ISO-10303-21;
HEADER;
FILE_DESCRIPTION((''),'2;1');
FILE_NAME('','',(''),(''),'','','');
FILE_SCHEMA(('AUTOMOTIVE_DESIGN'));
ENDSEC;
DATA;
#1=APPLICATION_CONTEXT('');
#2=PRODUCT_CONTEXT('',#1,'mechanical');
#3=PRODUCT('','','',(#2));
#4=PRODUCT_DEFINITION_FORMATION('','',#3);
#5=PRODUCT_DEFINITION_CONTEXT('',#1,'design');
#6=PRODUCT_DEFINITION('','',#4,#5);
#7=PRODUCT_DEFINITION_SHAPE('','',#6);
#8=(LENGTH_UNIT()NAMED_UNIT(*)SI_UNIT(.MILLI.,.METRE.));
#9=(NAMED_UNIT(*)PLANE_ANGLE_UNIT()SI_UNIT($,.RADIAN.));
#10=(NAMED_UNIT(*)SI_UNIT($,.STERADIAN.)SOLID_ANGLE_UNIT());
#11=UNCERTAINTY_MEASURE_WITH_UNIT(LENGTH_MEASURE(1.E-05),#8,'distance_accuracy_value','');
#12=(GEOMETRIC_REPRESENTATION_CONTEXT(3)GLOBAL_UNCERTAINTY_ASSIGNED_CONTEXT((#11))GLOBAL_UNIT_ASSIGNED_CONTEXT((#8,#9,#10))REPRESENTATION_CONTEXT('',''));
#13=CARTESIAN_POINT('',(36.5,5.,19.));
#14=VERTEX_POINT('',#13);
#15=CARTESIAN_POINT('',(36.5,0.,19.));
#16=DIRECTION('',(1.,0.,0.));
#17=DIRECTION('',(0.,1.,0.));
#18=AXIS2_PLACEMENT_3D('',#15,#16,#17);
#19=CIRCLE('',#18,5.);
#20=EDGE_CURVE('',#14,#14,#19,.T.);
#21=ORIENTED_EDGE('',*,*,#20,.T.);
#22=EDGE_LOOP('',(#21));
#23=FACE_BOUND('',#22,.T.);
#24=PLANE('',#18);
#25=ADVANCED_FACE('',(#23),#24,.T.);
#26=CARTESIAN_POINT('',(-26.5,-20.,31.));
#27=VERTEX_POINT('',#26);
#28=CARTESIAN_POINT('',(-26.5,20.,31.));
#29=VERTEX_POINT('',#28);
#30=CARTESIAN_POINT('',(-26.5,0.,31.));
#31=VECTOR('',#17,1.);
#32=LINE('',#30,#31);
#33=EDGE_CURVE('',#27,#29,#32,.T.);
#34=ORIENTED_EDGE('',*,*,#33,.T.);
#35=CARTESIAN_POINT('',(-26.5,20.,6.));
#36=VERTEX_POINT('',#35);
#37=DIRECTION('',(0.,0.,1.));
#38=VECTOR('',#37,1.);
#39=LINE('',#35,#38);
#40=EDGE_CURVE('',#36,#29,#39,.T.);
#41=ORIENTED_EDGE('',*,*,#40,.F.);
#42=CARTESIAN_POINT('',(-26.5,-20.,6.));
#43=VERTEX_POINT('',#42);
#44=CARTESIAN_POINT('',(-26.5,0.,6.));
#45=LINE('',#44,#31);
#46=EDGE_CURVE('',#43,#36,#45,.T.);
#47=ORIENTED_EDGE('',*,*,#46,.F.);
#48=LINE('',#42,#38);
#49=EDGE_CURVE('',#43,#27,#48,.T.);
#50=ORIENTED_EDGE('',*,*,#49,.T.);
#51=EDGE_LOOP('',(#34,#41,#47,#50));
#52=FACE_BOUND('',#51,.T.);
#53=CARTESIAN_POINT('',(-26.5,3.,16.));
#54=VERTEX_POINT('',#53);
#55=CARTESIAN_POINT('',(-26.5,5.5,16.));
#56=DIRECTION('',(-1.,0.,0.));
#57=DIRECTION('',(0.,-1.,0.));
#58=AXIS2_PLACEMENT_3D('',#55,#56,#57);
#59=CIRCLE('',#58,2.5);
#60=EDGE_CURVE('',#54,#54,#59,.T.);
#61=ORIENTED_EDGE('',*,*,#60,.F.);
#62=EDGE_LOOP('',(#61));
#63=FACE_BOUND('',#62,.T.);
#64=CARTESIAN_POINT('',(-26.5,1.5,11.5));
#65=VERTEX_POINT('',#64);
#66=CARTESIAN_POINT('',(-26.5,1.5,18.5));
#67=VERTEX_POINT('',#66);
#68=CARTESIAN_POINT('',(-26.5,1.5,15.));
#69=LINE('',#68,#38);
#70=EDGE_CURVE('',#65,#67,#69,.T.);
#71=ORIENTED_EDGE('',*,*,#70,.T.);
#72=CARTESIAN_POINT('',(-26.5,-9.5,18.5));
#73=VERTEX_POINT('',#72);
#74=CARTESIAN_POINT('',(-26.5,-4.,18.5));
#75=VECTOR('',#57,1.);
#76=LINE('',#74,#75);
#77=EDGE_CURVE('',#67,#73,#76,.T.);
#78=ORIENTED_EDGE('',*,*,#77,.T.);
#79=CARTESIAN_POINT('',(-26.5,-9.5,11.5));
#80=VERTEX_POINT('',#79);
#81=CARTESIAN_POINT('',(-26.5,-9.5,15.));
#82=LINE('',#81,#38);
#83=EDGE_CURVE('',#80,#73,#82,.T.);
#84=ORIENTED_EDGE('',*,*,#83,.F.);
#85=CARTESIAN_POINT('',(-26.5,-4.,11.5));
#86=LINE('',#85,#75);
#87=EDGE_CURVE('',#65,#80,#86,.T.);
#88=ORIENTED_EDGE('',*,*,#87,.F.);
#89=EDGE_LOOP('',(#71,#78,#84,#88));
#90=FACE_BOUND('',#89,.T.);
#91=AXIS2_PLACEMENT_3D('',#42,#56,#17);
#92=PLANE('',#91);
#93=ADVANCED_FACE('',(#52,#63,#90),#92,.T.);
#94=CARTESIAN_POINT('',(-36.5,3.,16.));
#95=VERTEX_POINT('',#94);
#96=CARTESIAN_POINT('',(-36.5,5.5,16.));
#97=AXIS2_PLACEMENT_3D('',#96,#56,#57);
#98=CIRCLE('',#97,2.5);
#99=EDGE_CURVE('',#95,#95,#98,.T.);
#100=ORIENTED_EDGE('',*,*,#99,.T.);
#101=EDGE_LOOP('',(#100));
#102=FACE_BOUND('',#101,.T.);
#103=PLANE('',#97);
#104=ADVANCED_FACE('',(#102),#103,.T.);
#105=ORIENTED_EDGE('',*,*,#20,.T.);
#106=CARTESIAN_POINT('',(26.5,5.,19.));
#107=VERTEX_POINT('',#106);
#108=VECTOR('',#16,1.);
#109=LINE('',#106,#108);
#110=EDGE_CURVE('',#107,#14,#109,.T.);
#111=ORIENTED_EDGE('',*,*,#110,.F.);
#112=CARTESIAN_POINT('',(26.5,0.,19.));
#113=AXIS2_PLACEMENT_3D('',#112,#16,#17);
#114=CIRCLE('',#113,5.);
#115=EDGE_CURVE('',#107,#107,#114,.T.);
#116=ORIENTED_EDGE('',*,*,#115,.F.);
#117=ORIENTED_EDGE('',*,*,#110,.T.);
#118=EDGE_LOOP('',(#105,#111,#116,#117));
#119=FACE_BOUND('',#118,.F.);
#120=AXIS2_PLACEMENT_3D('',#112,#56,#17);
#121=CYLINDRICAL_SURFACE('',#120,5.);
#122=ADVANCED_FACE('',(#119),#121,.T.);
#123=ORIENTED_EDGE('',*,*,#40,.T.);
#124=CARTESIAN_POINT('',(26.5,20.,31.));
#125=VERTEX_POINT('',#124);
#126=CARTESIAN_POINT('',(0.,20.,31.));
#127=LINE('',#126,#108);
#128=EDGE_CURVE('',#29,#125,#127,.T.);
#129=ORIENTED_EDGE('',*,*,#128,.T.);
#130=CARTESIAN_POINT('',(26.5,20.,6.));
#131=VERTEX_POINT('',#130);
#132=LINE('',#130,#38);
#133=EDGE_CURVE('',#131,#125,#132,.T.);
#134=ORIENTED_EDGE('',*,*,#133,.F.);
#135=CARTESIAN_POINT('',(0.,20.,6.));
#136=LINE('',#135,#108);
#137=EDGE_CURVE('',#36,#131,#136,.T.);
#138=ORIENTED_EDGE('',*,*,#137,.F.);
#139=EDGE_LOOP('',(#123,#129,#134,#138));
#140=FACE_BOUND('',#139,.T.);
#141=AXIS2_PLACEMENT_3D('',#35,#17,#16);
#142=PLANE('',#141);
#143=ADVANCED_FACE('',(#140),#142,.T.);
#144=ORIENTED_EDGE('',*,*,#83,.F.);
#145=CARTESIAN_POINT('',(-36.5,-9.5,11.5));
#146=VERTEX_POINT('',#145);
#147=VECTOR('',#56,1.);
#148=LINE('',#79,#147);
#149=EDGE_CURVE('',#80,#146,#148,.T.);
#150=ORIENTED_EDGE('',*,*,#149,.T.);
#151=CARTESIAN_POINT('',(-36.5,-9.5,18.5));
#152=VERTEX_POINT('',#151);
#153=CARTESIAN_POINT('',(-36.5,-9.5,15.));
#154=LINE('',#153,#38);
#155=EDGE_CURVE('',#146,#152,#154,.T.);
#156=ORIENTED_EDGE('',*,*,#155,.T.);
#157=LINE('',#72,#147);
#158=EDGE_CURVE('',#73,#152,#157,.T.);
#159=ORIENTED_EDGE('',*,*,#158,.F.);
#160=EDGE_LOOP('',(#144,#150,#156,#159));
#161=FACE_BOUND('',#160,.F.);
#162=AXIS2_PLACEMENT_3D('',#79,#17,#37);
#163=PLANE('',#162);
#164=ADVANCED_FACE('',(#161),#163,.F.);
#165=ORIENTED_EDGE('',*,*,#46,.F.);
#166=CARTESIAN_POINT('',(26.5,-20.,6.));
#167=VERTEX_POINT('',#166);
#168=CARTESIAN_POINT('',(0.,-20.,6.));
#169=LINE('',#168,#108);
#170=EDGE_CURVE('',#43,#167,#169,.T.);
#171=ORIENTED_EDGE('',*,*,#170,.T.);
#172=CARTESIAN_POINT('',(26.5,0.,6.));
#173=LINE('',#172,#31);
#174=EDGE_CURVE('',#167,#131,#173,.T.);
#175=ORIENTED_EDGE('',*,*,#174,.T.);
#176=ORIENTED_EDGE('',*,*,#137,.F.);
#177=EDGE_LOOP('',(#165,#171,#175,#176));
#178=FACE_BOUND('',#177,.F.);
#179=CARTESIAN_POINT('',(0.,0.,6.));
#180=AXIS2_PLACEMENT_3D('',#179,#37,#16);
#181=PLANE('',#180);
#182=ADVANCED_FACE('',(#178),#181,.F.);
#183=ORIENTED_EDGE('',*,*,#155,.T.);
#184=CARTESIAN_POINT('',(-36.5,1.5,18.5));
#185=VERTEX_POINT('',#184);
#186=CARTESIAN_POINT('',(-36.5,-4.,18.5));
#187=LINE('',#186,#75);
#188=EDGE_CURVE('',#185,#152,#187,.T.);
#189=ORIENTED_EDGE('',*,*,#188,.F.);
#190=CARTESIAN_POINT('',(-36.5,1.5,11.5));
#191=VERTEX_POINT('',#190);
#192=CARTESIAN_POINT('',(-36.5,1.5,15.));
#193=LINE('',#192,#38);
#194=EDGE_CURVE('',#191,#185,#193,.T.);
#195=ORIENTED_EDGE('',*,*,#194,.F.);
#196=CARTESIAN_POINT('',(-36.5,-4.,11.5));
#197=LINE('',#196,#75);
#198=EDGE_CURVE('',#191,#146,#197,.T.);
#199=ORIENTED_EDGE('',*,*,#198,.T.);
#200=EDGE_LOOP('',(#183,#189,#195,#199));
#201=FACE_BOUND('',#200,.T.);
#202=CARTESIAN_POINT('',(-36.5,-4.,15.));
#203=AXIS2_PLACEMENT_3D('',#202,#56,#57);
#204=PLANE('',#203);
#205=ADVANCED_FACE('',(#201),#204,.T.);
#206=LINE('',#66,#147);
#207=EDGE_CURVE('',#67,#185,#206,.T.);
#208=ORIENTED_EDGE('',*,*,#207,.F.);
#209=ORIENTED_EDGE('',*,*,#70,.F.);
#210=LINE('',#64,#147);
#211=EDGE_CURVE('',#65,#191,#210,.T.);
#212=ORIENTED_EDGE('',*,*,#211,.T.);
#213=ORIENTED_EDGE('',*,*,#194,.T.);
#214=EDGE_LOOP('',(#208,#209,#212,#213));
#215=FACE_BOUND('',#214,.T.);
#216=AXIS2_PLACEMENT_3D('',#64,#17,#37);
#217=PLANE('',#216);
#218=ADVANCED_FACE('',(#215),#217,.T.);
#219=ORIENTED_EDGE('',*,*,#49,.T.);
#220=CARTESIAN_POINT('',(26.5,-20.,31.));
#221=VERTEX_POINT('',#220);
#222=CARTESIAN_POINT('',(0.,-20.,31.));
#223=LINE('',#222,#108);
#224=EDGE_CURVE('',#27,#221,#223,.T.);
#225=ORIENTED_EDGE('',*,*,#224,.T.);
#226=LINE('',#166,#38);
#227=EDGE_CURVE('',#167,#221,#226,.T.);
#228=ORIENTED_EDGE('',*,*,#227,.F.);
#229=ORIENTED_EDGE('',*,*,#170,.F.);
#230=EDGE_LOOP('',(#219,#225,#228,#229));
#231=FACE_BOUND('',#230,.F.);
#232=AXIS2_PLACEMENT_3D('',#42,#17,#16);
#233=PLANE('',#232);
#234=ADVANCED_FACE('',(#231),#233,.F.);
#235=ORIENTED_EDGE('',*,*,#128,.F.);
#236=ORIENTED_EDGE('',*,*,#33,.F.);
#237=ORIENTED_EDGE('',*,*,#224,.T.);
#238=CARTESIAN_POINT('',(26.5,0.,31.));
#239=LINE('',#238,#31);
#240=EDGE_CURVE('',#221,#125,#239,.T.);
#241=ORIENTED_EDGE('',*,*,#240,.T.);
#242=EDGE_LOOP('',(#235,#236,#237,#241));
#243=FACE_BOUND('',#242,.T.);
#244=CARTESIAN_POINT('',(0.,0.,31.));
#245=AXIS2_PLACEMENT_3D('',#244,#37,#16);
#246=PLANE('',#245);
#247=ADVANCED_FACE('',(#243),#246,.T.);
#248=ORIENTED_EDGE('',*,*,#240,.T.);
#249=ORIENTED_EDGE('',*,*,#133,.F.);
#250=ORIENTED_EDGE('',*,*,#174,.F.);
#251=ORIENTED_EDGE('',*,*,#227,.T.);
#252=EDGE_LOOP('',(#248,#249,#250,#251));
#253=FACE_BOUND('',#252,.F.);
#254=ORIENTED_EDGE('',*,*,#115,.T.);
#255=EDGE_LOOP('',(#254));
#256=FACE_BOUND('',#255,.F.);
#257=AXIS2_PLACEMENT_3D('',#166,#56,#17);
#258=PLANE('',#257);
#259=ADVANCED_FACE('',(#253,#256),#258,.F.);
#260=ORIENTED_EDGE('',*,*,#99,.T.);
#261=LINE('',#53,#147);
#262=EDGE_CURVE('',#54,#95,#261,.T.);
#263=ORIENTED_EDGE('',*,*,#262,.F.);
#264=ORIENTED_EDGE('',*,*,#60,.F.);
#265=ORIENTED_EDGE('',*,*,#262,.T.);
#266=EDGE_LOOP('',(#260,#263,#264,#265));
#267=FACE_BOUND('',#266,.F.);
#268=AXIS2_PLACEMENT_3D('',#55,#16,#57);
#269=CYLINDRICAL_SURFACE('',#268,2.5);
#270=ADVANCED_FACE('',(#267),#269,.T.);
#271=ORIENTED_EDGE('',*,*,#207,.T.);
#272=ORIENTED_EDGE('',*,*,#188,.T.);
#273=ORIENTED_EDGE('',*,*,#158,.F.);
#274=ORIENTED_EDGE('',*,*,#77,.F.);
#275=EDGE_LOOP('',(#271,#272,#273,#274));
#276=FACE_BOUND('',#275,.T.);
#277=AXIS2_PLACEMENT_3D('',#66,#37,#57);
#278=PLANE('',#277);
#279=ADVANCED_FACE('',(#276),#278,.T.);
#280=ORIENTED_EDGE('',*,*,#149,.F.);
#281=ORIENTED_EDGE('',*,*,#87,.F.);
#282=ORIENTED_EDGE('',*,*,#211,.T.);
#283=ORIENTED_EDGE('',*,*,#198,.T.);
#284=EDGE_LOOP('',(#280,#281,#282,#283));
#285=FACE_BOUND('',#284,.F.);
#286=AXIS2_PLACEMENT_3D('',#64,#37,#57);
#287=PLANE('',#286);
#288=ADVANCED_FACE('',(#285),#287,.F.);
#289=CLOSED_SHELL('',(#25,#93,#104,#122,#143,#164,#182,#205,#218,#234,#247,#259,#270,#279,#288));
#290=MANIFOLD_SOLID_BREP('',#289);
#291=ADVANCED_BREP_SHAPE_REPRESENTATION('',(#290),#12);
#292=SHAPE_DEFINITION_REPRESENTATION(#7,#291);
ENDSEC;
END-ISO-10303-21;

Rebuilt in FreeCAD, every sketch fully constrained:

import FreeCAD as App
import Part
import Sketcher

doc = App.newDocument("Part")
body = doc.addObject("PartDesign::Body", "Body")

# Sketch on XY plane
sketch1 = doc.addObject("Sketcher::SketchObject", "Sketch")
body.addObject(sketch1)
sketch1.AttachmentSupport = (doc.XY_Plane, [""])
sketch1.MapMode = "FlatFace"
sketch1.addGeometry([
    Part.LineSegment(App.Vector(-26, 20, 0), App.Vector(-26, -20, 0)),
    Part.LineSegment(App.Vector(-26, -20, 0), App.Vector(26, -20, 0)),
    Part.LineSegment(App.Vector(26, -20, 0), App.Vector(26, 20, 0)),
    Part.LineSegment(App.Vector(26, 20, 0), App.Vector(-26, 20, 0)),
], False)
sketch1.addConstraint([
    Sketcher.Constraint("Coincident", 0, 2, 1, 1),
    Sketcher.Constraint("Coincident", 1, 2, 2, 1),
    Sketcher.Constraint("Coincident", 2, 2, 3, 1),
    Sketcher.Constraint("Coincident", 3, 2, 0, 1),
    Sketcher.Constraint("Vertical", 0),
    Sketcher.Constraint("Horizontal", 1),
    Sketcher.Constraint("Vertical", 2),
    Sketcher.Constraint("Horizontal", 3),
    Sketcher.Constraint("Symmetric", 0, 2, 2, 2, -1, 1),
    Sketcher.Constraint("DistanceX", 1, 1, 1, 2, 53.0),
    Sketcher.Constraint("DistanceY", 0, 2, 0, 1, 40.0),
])
pad1 = doc.addObject("PartDesign::Pad", "Pad")
body.addObject(pad1)
pad1.Profile = sketch1
pad1.Length = 25

# Sketch on YZ plane
sketch2 = doc.addObject("Sketcher::SketchObject", "Sketch001")
body.addObject(sketch2)
sketch2.AttachmentSupport = (doc.YZ_Plane, [""])
sketch2.MapMode = "FlatFace"
sketch2.AttachmentOffset = App.Placement(App.Vector(0, 0, 26.5), App.Rotation())
sketch2.addGeometry(Part.Circle(App.Vector(0, 13, 0), App.Vector(0, 0, 1), 5), False)
sketch2.addConstraint([
    Sketcher.Constraint("PointOnObject", 0, 3, -2),
    Sketcher.Constraint("Diameter", 0, 10.0),
    Sketcher.Constraint("DistanceY", -1, 1, 0, 3, 13.0),
])
pad2 = doc.addObject("PartDesign::Pad", "Pad001")
body.addObject(pad2)
pad2.Profile = sketch2
pad2.Length = 10

# Sketch on YZ plane
sketch3 = doc.addObject("Sketcher::SketchObject", "Sketch002")
body.addObject(sketch3)
sketch3.AttachmentSupport = (doc.YZ_Plane, [""])
sketch3.MapMode = "FlatFace"
sketch3.AttachmentOffset = App.Placement(App.Vector(0, 0, -26.5), App.Rotation())
sketch3.addGeometry([
    Part.Circle(App.Vector(5.5, 10, 0), App.Vector(0, 0, 1), 2.5),  # 0
    Part.LineSegment(App.Vector(1.5, 12.5, 0), App.Vector(1.5, 5.5, 0)),  # 1
    Part.LineSegment(App.Vector(1.5, 5.5, 0), App.Vector(-9.5, 5.5, 0)),  # 2
    Part.LineSegment(App.Vector(-9.5, 5.5, 0), App.Vector(-9.5, 12.5, 0)),  # 3
    Part.LineSegment(App.Vector(-9.5, 12.5, 0), App.Vector(1.5, 12.5, 0)),  # 4
], False)
sketch3.addConstraint([
    Sketcher.Constraint("Coincident", 1, 2, 2, 1),
    Sketcher.Constraint("Coincident", 2, 2, 3, 1),
    Sketcher.Constraint("Coincident", 3, 2, 4, 1),
    Sketcher.Constraint("Coincident", 4, 2, 1, 1),
    Sketcher.Constraint("Vertical", 1),
    Sketcher.Constraint("Horizontal", 2),
    Sketcher.Constraint("Vertical", 3),
    Sketcher.Constraint("Horizontal", 4),
    Sketcher.Constraint("Diameter", 0, 5.0),
    Sketcher.Constraint("DistanceX", 2, 2, 2, 1, 11.0),
    Sketcher.Constraint("DistanceY", 1, 2, 1, 1, 7.0),
    Sketcher.Constraint("DistanceY", -1, 1, 0, 3, 10.0),
    Sketcher.Constraint("DistanceX", 1, 2, 0, 3, 4.0),
    Sketcher.Constraint("DistanceX", -1, 1, 0, 3, 5.5),
    Sketcher.Constraint("DistanceY", -1, 1, 1, 2, 5.5),
])
pad3 = doc.addObject("PartDesign::Pad", "Pad002")
body.addObject(pad3)
pad3.Profile = sketch3
pad3.Length = 10
pad3.Reversed = True
body2 = doc.addObject("PartDesign::Body", "Body001")
doc.recompute()

body.Placement = App.Placement(App.Vector(0, 0, 6), App.Rotation(App.Vector(0, 0, 1), 0))
boolean = doc.addObject("PartDesign::Boolean", "Boolean")
body2.addObject(boolean)
boolean.Type = "Fuse"
boolean.addObjects([body])

doc.recompute()
